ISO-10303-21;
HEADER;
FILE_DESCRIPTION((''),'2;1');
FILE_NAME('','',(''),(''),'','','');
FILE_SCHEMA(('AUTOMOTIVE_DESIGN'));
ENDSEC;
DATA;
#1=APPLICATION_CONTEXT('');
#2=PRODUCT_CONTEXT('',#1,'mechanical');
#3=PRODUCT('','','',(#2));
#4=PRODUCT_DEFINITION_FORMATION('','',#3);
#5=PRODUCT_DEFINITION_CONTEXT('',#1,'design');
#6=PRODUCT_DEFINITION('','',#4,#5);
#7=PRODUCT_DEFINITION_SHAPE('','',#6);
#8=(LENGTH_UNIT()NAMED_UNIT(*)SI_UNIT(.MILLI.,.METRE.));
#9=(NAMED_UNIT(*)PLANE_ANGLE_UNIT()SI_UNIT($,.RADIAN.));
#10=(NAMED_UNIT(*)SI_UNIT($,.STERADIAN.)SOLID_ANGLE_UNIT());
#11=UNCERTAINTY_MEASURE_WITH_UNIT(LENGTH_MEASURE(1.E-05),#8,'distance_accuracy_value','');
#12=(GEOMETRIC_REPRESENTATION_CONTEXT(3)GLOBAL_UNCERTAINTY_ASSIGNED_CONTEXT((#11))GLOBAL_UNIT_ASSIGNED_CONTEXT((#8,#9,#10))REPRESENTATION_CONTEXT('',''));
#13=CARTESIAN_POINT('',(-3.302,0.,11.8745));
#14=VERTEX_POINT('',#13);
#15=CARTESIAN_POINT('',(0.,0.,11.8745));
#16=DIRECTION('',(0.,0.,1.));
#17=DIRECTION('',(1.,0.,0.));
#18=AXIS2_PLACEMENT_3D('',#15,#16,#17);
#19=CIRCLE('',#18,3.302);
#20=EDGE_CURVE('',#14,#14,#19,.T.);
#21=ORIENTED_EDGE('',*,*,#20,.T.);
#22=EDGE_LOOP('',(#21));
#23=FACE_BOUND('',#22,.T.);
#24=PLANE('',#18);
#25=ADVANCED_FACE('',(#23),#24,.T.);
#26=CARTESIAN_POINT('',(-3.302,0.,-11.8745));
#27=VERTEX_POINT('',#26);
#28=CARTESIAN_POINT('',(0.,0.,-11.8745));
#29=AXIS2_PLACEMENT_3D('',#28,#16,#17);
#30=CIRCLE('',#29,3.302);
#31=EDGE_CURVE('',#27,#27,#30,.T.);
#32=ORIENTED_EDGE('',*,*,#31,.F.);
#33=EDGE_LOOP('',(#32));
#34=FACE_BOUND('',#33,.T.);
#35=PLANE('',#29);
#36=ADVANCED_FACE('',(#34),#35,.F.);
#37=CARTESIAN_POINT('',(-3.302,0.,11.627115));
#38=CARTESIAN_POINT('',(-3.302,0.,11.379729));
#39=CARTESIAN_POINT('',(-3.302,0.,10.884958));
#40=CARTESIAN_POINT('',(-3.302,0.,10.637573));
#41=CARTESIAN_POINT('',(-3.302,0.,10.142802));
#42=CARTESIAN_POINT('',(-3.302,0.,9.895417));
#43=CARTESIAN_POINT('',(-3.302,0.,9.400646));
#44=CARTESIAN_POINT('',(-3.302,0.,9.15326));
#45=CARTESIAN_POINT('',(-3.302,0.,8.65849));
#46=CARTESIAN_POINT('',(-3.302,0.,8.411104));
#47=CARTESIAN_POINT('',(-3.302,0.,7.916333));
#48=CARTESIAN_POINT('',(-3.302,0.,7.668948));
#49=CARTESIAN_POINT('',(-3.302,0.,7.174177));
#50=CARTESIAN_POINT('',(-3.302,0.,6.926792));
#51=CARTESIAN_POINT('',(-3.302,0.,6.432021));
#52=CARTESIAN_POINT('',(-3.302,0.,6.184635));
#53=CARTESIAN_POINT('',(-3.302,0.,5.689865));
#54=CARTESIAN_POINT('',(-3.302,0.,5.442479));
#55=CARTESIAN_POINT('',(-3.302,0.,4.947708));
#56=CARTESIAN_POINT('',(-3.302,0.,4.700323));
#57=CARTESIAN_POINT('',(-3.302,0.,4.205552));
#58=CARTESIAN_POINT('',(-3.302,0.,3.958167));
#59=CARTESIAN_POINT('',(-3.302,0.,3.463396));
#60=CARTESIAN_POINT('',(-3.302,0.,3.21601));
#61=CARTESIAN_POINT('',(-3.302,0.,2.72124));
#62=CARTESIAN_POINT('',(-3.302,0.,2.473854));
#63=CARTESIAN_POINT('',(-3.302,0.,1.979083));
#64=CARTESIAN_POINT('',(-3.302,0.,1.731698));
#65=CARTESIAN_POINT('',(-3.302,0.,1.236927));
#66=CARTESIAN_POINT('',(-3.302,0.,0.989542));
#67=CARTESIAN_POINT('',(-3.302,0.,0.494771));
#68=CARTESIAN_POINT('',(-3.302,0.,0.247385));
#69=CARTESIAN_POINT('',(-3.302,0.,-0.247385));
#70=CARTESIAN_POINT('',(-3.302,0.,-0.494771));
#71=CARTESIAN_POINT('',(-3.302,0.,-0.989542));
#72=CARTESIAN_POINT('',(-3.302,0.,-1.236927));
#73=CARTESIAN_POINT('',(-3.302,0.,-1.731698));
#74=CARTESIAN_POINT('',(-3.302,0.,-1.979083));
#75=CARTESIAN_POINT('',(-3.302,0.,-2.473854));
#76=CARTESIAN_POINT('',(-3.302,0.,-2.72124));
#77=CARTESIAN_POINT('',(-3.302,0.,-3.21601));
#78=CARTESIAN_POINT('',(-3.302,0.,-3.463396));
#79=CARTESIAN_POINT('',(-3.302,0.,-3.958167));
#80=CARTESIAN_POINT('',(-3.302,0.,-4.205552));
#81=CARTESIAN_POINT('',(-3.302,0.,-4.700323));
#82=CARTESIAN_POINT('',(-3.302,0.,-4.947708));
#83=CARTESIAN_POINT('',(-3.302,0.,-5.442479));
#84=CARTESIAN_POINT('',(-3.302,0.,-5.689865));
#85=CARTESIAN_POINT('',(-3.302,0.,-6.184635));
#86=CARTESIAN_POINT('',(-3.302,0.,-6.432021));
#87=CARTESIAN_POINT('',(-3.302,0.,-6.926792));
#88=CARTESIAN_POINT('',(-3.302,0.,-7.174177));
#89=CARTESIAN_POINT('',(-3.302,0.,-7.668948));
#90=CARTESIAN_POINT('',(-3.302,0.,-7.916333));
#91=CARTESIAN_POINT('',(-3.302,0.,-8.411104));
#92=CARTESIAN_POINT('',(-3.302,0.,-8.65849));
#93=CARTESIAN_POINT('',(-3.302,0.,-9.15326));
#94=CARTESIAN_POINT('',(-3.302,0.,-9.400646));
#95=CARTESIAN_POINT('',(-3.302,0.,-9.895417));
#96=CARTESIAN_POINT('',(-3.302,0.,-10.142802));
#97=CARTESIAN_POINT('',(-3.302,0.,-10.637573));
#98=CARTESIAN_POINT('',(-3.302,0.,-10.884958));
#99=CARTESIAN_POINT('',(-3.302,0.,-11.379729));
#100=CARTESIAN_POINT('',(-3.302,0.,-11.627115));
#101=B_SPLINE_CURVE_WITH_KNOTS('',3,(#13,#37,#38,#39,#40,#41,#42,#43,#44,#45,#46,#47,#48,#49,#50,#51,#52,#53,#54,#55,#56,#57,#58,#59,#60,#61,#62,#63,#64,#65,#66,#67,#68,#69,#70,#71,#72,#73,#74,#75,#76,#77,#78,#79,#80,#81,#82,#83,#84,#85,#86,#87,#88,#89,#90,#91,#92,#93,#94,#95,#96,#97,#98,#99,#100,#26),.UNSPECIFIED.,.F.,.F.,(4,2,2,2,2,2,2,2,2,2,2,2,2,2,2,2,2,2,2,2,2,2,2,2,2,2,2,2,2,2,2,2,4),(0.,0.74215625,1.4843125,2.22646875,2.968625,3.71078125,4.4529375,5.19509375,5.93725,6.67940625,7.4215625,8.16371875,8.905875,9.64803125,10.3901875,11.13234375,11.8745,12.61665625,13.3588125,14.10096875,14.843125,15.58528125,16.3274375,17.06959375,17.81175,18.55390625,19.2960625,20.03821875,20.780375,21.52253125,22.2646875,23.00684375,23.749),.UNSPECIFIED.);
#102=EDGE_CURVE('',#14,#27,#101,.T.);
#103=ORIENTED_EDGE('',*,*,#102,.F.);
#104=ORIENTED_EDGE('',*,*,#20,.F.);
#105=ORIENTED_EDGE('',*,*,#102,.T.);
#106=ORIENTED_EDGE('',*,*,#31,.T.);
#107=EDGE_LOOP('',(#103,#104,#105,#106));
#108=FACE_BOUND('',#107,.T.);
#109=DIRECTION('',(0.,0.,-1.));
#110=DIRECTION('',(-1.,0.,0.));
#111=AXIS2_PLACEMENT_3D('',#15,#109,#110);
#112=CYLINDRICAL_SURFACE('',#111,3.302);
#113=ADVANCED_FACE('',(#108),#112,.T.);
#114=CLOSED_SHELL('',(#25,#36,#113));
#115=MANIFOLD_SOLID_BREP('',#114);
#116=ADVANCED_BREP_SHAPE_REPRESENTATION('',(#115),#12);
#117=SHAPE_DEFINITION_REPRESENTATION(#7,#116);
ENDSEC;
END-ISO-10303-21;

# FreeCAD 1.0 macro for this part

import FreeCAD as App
import Part
import Sketcher
Q = App.Units.Quantity

doc = App.newDocument("Part")
params = doc.addObject("Spreadsheet::Sheet", "Params")
for row, (alias, value) in enumerate([
    ("sketch1_diameter", "0.26 in"),
    ("pad1_length", "0.935 in"),
], start=1):
    params.set(f"A{row}", alias)
    params.set(f"B{row}", "=" + value)
    params.setAlias(f"B{row}", alias)

body = doc.addObject("PartDesign::Body", "Body")

sketch1 = body.newObject("Sketcher::SketchObject", "Sketch")
sketch1.AttachmentSupport = (doc.getObject("XY_Plane"), [""])
sketch1.MapMode = "FlatFace"
sketch1.addGeometry(Part.Circle(App.Vector(0, 0, 0), App.Vector(0, 0, 1), 3.3), False)
sketch1.addConstraint([
    Sketcher.Constraint("Coincident", 0, 3, -1, 1),
    Sketcher.Constraint("Diameter", 0, Q("0.26 in")),
])
sketch1.setExpression("Constraints[1]", "Params.sketch1_diameter")
pad1 = body.newObject("PartDesign::Pad", "Pad")
pad1.Profile = sketch1
pad1.setExpression("Length", "Params.pad1_length")
pad1.Midplane = True

doc.recompute()
